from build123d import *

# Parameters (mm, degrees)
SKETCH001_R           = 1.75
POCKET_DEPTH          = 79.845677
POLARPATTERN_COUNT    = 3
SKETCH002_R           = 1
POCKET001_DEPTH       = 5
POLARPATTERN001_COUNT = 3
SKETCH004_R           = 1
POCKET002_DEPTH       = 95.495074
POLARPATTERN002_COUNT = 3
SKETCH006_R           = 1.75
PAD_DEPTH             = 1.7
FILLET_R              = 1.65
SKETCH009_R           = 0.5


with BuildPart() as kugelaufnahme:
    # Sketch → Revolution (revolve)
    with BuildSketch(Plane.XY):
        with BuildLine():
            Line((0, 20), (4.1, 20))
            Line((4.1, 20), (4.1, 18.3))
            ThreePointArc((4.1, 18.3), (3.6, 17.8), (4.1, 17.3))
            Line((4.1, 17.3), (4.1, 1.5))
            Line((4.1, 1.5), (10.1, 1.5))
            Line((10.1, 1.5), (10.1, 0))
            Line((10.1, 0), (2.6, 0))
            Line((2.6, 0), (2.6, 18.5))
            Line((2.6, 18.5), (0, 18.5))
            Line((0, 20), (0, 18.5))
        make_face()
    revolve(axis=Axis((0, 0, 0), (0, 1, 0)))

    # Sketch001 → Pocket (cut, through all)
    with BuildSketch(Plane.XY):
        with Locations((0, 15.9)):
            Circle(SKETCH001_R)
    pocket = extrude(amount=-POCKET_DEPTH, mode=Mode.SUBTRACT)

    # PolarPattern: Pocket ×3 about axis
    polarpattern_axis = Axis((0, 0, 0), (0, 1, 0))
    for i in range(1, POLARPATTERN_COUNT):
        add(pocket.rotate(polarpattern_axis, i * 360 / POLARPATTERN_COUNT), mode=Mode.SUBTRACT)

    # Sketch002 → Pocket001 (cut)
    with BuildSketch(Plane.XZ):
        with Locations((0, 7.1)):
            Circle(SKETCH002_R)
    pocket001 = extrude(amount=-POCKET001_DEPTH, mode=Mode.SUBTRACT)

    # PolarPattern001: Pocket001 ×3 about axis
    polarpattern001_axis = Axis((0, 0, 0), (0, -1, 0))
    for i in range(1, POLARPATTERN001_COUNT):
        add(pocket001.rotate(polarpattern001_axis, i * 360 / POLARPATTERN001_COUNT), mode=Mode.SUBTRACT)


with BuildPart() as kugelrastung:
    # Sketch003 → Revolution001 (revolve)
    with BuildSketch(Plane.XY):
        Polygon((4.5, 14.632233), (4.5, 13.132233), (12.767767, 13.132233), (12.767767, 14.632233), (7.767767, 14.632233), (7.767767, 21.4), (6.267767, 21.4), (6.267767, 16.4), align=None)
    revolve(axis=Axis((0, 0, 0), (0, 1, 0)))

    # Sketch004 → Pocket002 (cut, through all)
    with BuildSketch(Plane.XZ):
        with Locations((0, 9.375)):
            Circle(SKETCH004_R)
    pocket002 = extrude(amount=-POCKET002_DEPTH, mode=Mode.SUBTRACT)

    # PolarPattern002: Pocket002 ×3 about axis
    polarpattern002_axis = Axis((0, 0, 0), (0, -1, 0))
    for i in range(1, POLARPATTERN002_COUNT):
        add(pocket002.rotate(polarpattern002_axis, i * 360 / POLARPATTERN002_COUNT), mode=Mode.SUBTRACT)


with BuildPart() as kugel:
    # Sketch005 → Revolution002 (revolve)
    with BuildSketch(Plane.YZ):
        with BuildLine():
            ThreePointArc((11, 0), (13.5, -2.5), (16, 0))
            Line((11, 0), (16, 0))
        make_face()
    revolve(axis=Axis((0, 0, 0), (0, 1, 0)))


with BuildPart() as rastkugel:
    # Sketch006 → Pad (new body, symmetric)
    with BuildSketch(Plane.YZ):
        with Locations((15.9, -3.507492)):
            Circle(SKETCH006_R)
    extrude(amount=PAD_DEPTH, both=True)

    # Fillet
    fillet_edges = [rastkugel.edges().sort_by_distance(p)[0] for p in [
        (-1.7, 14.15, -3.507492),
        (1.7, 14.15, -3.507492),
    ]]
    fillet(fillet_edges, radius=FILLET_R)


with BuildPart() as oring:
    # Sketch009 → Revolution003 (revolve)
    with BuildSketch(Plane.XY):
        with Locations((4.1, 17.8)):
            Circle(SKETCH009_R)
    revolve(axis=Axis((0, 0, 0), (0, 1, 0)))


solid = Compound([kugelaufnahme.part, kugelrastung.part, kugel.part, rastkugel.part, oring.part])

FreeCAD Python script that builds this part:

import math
import FreeCAD as App
import Part
import Sketcher
Q = App.Units.Quantity


def edges_at(feature, points):
    """Names of the edges that pass closest to the given points."""
    edges = feature.Shape.Edges
    near = lambda p: min(range(len(edges)), key=lambda i: edges[i].distToShape(Part.Vertex(*p))[0])
    return sorted({f"Edge{near(p) + 1}" for p in points})


def add_polygon(sketch, points):
    """Adds a closed chain of lines whose ends are joined by coincident constraints."""
    first, n = sketch.GeometryCount, len(points)
    for a, b in zip(points, points[1:] + points[:1]):
        sketch.addGeometry(Part.LineSegment(App.Vector(*a, 0), App.Vector(*b, 0)), False)
    for i in range(n):
        sketch.addConstraint(Sketcher.Constraint("Coincident", first + i, 2, first + (i + 1) % n, 1))

doc = App.newDocument("Part")
body = doc.addObject("PartDesign::Body", "Body")

# Sketch on XY plane
sketch1 = doc.addObject("Sketcher::SketchObject", "Sketch")
body.addObject(sketch1)
sketch1.AttachmentSupport = (doc.XY_Plane, [""])
sketch1.MapMode = "FlatFace"
sketch1.addGeometry([
    Part.LineSegment(App.Vector(4.1, 20, 0), App.Vector(0, 20, 0)),  # 0
    Part.LineSegment(App.Vector(0, 20, 0), App.Vector(0, 18.5, 0)),  # 1
    Part.LineSegment(App.Vector(0, 18.5, 0), App.Vector(2.6, 18.5, 0)),  # 2
    Part.LineSegment(App.Vector(2.6, 18.5, 0), App.Vector(2.6, 0, 0)),  # 3
    Part.LineSegment(App.Vector(2.6, 0, 0), App.Vector(10.1, 0, 0)),  # 4
    Part.LineSegment(App.Vector(10.1, 0, 0), App.Vector(10.1, 1.5, 0)),  # 5
    Part.LineSegment(App.Vector(10.1, 1.5, 0), App.Vector(4.1, 1.5, 0)),  # 6
    Part.LineSegment(App.Vector(4.1, 1.5, 0), App.Vector(4.1, 17.3, 0)),  # 7
    Part.ArcOfCircle(Part.Circle(App.Vector(4.1, 17.8, 0), App.Vector(0, 0, 1), 0.5), math.radians(90), math.radians(270)),  # 8
    Part.LineSegment(App.Vector(4.1, 18.3, 0), App.Vector(4.1, 20, 0)),  # 9
], False)
sketch1.addConstraint([
    Sketcher.Constraint("Coincident", 0, 2, 1, 1),
    Sketcher.Constraint("Coincident", 1, 2, 2, 1),
    Sketcher.Constraint("Coincident", 2, 2, 3, 1),
    Sketcher.Constraint("Coincident", 3, 2, 4, 1),
    Sketcher.Constraint("Coincident", 4, 2, 5, 1),
    Sketcher.Constraint("Coincident", 5, 2, 6, 1),
    Sketcher.Constraint("Coincident", 6, 2, 7, 1),
    Sketcher.Constraint("Coincident", 7, 2, 8, 2),
    Sketcher.Constraint("Coincident", 8, 1, 9, 1),
    Sketcher.Constraint("Coincident", 9, 2, 0, 1),
    Sketcher.Constraint("Horizontal", 0),
    Sketcher.Constraint("Vertical", 1),
    Sketcher.Constraint("Horizontal", 2),
    Sketcher.Constraint("Vertical", 3),
    Sketcher.Constraint("Horizontal", 4),
    Sketcher.Constraint("Vertical", 5),
    Sketcher.Constraint("Horizontal", 6),
    Sketcher.Constraint("Vertical", 7),
    Sketcher.Constraint("Vertical", 9),
    Sketcher.Constraint("PointOnObject", 0, 2, -2),
    Sketcher.Constraint("PointOnObject", 3, 2, -1),
    Sketcher.Constraint("Vertical", 8, 3, 6, 2),
    Sketcher.Constraint("Vertical", 7, 2, 8, 1),
    Sketcher.Constraint("Equal", 1, 5),
    Sketcher.Constraint("Radius", 8, 0.5),
    Sketcher.Constraint("DistanceX", 6, 2, 6, 1, 6.0),
    Sketcher.Constraint("DistanceX", 0, 2, 0, 1, 4.1),
    Sketcher.Constraint("DistanceX", 2, 1, 2, 2, 2.6),
    Sketcher.Constraint("DistanceY", 1, 2, 1, 1, 1.5),
    Sketcher.Constraint("DistanceY", 3, 2, 3, 1, 18.5),
    Sketcher.Constraint("DistanceY", 7, 1, 7, 2, 15.8),
])
revolution = doc.addObject("PartDesign::Revolution", "Revolution")
body.addObject(revolution)
revolution.Profile = sketch1
revolution.ReferenceAxis = (sketch1, ["V_Axis"])
revolution.Angle = 360

# Sketch on XY plane
sketch2 = doc.addObject("Sketcher::SketchObject", "Sketch001")
body.addObject(sketch2)
sketch2.AttachmentSupport = (doc.XY_Plane, [""])
sketch2.MapMode = "FlatFace"
sketch2.addGeometry(Part.Circle(App.Vector(0, 15.9, 0), App.Vector(0, 0, 1), 1.75), False)
sketch2.addConstraint([
    Sketcher.Constraint("PointOnObject", 0, 3, -2),
    Sketcher.Constraint("Diameter", 0, 3.5),
    Sketcher.Constraint("DistanceY", -1, 1, 0, 3, 15.9),
])
pocket1 = doc.addObject("PartDesign::Pocket", "Pocket")
body.addObject(pocket1)
pocket1.Profile = sketch2
pocket1.Type = "ThroughAll"
doc.recompute()

polarpattern = doc.addObject("PartDesign::PolarPattern", "PolarPattern")
body.addObject(polarpattern)
polarpattern.Originals = [pocket1]
polarpattern.Axis = (doc.Y_Axis, [""])
polarpattern.Angle = 360
polarpattern.Occurrences = 3
body.Tip = polarpattern

# Sketch on XZ plane
sketch3 = doc.addObject("Sketcher::SketchObject", "Sketch002")
body.addObject(sketch3)
sketch3.AttachmentSupport = (doc.XZ_Plane, [""])
sketch3.MapMode = "FlatFace"
sketch3.addGeometry(Part.Circle(App.Vector(0, 7.1, 0), App.Vector(0, 0, 1), 1), False)
sketch3.addConstraint([
    Sketcher.Constraint("PointOnObject", 0, 3, -2),
    Sketcher.Constraint("Diameter", 0, 2.0),
    Sketcher.Constraint("DistanceY", -1, 1, 0, 3, 7.1),
])
pocket2 = doc.addObject("PartDesign::Pocket", "Pocket001")
body.addObject(pocket2)
pocket2.Profile = sketch3
pocket2.Length = 5
doc.recompute()

polarpattern2 = doc.addObject("PartDesign::PolarPattern", "PolarPattern001")
body.addObject(polarpattern2)
polarpattern2.Originals = [pocket2]
polarpattern2.Axis = (doc.Y_Axis, [""])
polarpattern2.Angle = 360
polarpattern2.Occurrences = 3
body.Tip = polarpattern2
body2 = doc.addObject("PartDesign::Body", "Body001")

# Sketch on XY plane
sketch4 = doc.addObject("Sketcher::SketchObject", "Sketch003")
body2.addObject(sketch4)
sketch4.AttachmentSupport = (doc.getObject("XY_Plane001"), [""])
sketch4.MapMode = "FlatFace"
add_polygon(sketch4, [(4.5, 14.632233), (4.5, 13.132233), (12.767767, 13.132233), (12.767767, 14.632233), (7.767767, 14.632233), (7.767767, 21.4), (6.267767, 21.4), (6.267767, 16.4)])  # lines 0-7
sketch4.addConstraint([
    Sketcher.Constraint("Vertical", 0),
    Sketcher.Constraint("Horizontal", 1),
    Sketcher.Constraint("Vertical", 2),
    Sketcher.Constraint("Horizontal", 3),
    Sketcher.Constraint("Vertical", 4),
    Sketcher.Constraint("Horizontal", 5),
    Sketcher.Constraint("Vertical", 6),
    Sketcher.Constraint("Horizontal", 3, 2, 7, 2),
    Sketcher.Constraint("Equal", 5, 0),
    Sketcher.Constraint("Equal", 3, 6),
    Sketcher.Constraint("DistanceX", 3, 2, 3, 1, 5.0),
    Sketcher.Constraint("Angle", 7, Q("-135 deg")),
    Sketcher.Constraint("DistanceX", 5, 2, 5, 1, 1.5),
    Sketcher.Constraint("Distance", 7, 2.5),
    Sketcher.Constraint("DistanceX", -1, 1, 0, 2, 4.5),
    Sketcher.Constraint("DistanceY", -1, 1, 4, 2, 21.4),
])
revolution2 = doc.addObject("PartDesign::Revolution", "Revolution001")
body2.addObject(revolution2)
revolution2.Profile = sketch4
revolution2.ReferenceAxis = (sketch4, ["V_Axis"])
revolution2.Angle = 360

# Sketch on XZ plane
sketch5 = doc.addObject("Sketcher::SketchObject", "Sketch004")
body2.addObject(sketch5)
sketch5.AttachmentSupport = (doc.getObject("XZ_Plane001"), [""])
sketch5.MapMode = "FlatFace"
sketch5.addGeometry(Part.Circle(App.Vector(0, 9.375, 0), App.Vector(0, 0, 1), 1), False)
sketch5.addConstraint([
    Sketcher.Constraint("PointOnObject", 0, 3, -2),
    Sketcher.Constraint("Diameter", 0, 2.0),
    Sketcher.Constraint("DistanceY", -1, 1, 0, 3, 9.375),
])
pocket3 = doc.addObject("PartDesign::Pocket", "Pocket002")
body2.addObject(pocket3)
pocket3.Profile = sketch5
pocket3.Type = "ThroughAll"
doc.recompute()

polarpattern3 = doc.addObject("PartDesign::PolarPattern", "PolarPattern002")
body2.addObject(polarpattern3)
polarpattern3.Originals = [pocket3]
polarpattern3.Axis = (doc.getObject("Y_Axis001"), [""])
polarpattern3.Angle = 360
polarpattern3.Occurrences = 3
body2.Tip = polarpattern3
body3 = doc.addObject("PartDesign::Body", "Body002")

# Sketch on YZ plane
sketch6 = doc.addObject("Sketcher::SketchObject", "Sketch005")
body3.addObject(sketch6)
sketch6.AttachmentSupport = (doc.getObject("YZ_Plane002"), [""])
sketch6.MapMode = "FlatFace"
sketch6.addGeometry([
    Part.ArcOfCircle(Part.Circle(App.Vector(13.5, 0, 0), App.Vector(0, 0, 1), 2.5), math.radians(180), math.radians(360)),
    Part.LineSegment(App.Vector(16, 0, 0), App.Vector(11, 0, 0)),
], False)
sketch6.addConstraint([
    Sketcher.Constraint("Coincident", 0, 1, 1, 2),
    Sketcher.Constraint("Coincident", 1, 1, 0, 2),
    Sketcher.Constraint("Horizontal", 1),
    Sketcher.Constraint("PointOnObject", 0, 3, -1),
    Sketcher.Constraint("PointOnObject", 0, 1, -1),
    Sketcher.Constraint("Radius", 0, 2.5),
    Sketcher.Constraint("DistanceX", -1, 1, 0, 1, 11.0),
])
revolution3 = doc.addObject("PartDesign::Revolution", "Revolution002")
body3.addObject(revolution3)
revolution3.Profile = sketch6
revolution3.ReferenceAxis = (sketch6, ["H_Axis"])
revolution3.Angle = 360
body4 = doc.addObject("PartDesign::Body", "Body003")

# Sketch on YZ plane
sketch7 = doc.addObject("Sketcher::SketchObject", "Sketch006")
body4.addObject(sketch7)
sketch7.AttachmentSupport = (doc.getObject("YZ_Plane003"), [""])
sketch7.MapMode = "FlatFace"
sketch7.addGeometry(Part.Circle(App.Vector(15.9, -3.507492, 0), App.Vector(0, 0, 1), 1.75), False)
sketch7.addConstraint([
    Sketcher.Constraint("Diameter", 0, 3.5),
    Sketcher.Constraint("DistanceX", -1, 1, 0, 3, 15.9),
    Sketcher.Constraint("DistanceY", 0, 3, -1, 1, 3.507492),
])
pad1 = doc.addObject("PartDesign::Pad", "Pad")
body4.addObject(pad1)
pad1.Profile = sketch7
pad1.Length = 3.4
pad1.Midplane = True
doc.recompute()

fillet = doc.addObject("PartDesign::Fillet", "Fillet")
body4.addObject(fillet)
fillet.Base = (pad1, edges_at(pad1, [(-1.7, 14.15, -3.507), (1.7, 14.15, -3.507)]))
fillet.Radius = 1.65
body5 = doc.addObject("PartDesign::Body", "Body004")

# Sketch on XY plane
sketch8 = doc.addObject("Sketcher::SketchObject", "Sketch007")
body5.addObject(sketch8)
sketch8.AttachmentSupport = (doc.getObject("XY_Plane004"), [""])
sketch8.MapMode = "FlatFace"
sketch8.addGeometry(Part.Circle(App.Vector(4.1, 17.8, 0), App.Vector(0, 0, 1), 0.5), False)
sketch8.addConstraint([
    Sketcher.Constraint("Diameter", 0, 1.0),
    Sketcher.Constraint("DistanceX", -1, 1, 0, 3, 4.1),
    Sketcher.Constraint("DistanceY", -1, 1, 0, 3, 17.8),
])
revolution4 = doc.addObject("PartDesign::Revolution", "Revolution003")
body5.addObject(revolution4)
revolution4.Profile = sketch8
revolution4.ReferenceAxis = (sketch8, ["V_Axis"])
revolution4.Angle = 360

doc.recompute()
